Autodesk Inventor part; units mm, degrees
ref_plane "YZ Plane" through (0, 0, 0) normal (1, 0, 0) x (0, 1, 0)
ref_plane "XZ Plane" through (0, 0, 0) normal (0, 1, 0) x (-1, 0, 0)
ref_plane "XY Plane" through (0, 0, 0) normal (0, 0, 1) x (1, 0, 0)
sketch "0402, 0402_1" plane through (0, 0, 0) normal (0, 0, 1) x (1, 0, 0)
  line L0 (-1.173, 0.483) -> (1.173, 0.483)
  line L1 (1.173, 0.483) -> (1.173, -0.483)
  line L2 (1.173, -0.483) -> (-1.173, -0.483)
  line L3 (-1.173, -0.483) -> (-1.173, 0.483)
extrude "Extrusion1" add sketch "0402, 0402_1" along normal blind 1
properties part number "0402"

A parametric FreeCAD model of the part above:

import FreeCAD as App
import Part
import Sketcher
from FreeCAD import Vector
Q = App.Units.Quantity

doc = App.newDocument("Part")
body = doc.addObject("PartDesign::Body", "Body")

sketch1 = body.newObject("Sketcher::SketchObject", "Sketch")
sketch1.AttachmentSupport = (doc.getObject("XY_Plane"), [""])
sketch1.MapMode = "FlatFace"
sketch1.addGeometry(Part.LineSegment(Vector(1.2, 0.5, 0), Vector(-1.2, 0.5, 0)), False)
sketch1.addGeometry(Part.LineSegment(Vector(-1.2, 0.5, 0), Vector(-1.2, -0.5, 0)), False)
sketch1.addGeometry(Part.LineSegment(Vector(-1.2, -0.5, 0), Vector(1.2, -0.5, 0)), False)
sketch1.addGeometry(Part.LineSegment(Vector(1.2, -0.5, 0), Vector(1.2, 0.5, 0)), False)
sketch1.addConstraint(Sketcher.Constraint("Coincident", 0, 2, 1, 1))
sketch1.addConstraint(Sketcher.Constraint("Coincident", 1, 2, 2, 1))
sketch1.addConstraint(Sketcher.Constraint("Coincident", 2, 2, 3, 1))
sketch1.addConstraint(Sketcher.Constraint("Coincident", 3, 2, 0, 1))
sketch1.addConstraint(Sketcher.Constraint("Horizontal", 0))
sketch1.addConstraint(Sketcher.Constraint("Vertical", 1))
sketch1.addConstraint(Sketcher.Constraint("Horizontal", 2))
sketch1.addConstraint(Sketcher.Constraint("Vertical", 3))
sketch1.addConstraint(Sketcher.Constraint("Symmetric", 0, 2, 2, 2, -1, 1))
sketch1.addConstraint(Sketcher.Constraint("DistanceX", 0, 2, 0, 1, Q("2.346 mm")))
sketch1.addConstraint(Sketcher.Constraint("DistanceY", 1, 2, 1, 1, Q("0.966 mm")))
pad1 = body.newObject("PartDesign::Pad", "Pad")
pad1.Profile = sketch1
pad1.Length = 1

doc.recompute()
